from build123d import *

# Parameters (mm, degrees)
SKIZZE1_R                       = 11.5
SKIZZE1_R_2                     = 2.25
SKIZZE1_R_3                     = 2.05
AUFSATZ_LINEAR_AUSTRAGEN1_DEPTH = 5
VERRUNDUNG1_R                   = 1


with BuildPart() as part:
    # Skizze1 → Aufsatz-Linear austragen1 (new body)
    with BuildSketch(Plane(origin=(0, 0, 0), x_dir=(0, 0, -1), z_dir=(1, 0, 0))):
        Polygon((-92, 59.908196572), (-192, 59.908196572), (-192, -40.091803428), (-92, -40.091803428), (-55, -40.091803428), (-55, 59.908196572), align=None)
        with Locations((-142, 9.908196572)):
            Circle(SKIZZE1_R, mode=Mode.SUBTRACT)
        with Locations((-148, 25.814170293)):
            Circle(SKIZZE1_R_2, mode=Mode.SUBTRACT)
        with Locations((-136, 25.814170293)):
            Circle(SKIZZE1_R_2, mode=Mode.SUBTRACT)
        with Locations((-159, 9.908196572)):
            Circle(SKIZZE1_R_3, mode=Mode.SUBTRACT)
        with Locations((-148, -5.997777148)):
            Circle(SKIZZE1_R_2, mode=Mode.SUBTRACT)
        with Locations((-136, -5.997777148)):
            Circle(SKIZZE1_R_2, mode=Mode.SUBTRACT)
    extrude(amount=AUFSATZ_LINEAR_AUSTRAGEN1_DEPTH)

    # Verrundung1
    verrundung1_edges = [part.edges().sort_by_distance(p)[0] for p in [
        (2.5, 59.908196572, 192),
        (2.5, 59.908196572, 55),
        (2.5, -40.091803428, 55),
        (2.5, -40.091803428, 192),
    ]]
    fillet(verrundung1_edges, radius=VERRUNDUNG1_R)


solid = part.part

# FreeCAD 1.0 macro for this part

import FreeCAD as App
import Part
import Sketcher
from FreeCAD import Vector
Q = App.Units.Quantity


def edges_at(feature, points):
    """Names of the edges that pass closest to the given points."""
    edges = feature.Shape.Edges
    near = lambda p: min(range(len(edges)), key=lambda i: edges[i].distToShape(Part.Vertex(*p))[0])
    return sorted({f"Edge{near(p) + 1}" for p in points})


def add_polygon(sketch, points):
    """Adds a closed chain of lines whose ends are joined by coincident constraints."""
    first, n = sketch.GeometryCount, len(points)
    for a, b in zip(points, points[1:] + points[:1]):
        sketch.addGeometry(Part.LineSegment(App.Vector(*a, 0), App.Vector(*b, 0)), False)
    for i in range(n):
        sketch.addConstraint(Sketcher.Constraint("Coincident", first + i, 2, first + (i + 1) % n, 1))

doc = App.newDocument("Part")
body = doc.addObject("PartDesign::Body", "Body")

sketch1 = body.newObject("Sketcher::SketchObject", "Sketch")
sketch1.AttachmentSupport = (doc.getObject("YZ_Plane"), [""])
sketch1.MapMode = "FlatFace"
add_polygon(sketch1, [(59.908197, 192), (-40.091803, 192), (-40.091803, 55), (59.908197, 55)])
sketch1.addGeometry(Part.Circle(Vector(-5.997777, 148, 0), Vector(0, 0, 1), 2.25), False)
sketch1.addGeometry(Part.Circle(Vector(9.908197, 159, 0), Vector(0, 0, 1), 2.05), False)
sketch1.addGeometry(Part.Circle(Vector(-5.997777, 136, 0), Vector(0, 0, 1), 2.25), False)
sketch1.addGeometry(Part.Circle(Vector(9.908197, 142, 0), Vector(0, 0, 1), 11.5), False)
sketch1.addGeometry(Part.Circle(Vector(25.81417, 148, 0), Vector(0, 0, 1), 2.25), False)
sketch1.addGeometry(Part.Circle(Vector(25.81417, 136, 0), Vector(0, 0, 1), 2.25), False)
sketch1.addConstraint([
    Sketcher.Constraint("Horizontal", 0),
    Sketcher.Constraint("Vertical", 1),
    Sketcher.Constraint("Horizontal", 2),
    Sketcher.Constraint("Vertical", 3),
    Sketcher.Constraint("Equal", 4, 6),
    Sketcher.Constraint("Equal", 6, 8),
    Sketcher.Constraint("Equal", 8, 9),
    Sketcher.Constraint("Horizontal", 4, 3, 8, 3),
    Sketcher.Constraint("Horizontal", 6, 3, 9, 3),
    Sketcher.Constraint("Vertical", 4, 3, 6, 3),
    Sketcher.Constraint("Vertical", 5, 3, 7, 3),
    Sketcher.Constraint("Vertical", 8, 3, 9, 3),
    Sketcher.Constraint("Diameter", 7, Q("23 mm")),
    Sketcher.Constraint("Diameter", 4, Q("4.5 mm")),
    Sketcher.Constraint("Diameter", 5, Q("4.1 mm")),
    Sketcher.Constraint("DistanceX", 0, 2, 0, 1, Q("100 mm")),
    Sketcher.Constraint("DistanceY", 1, 2, 1, 1, Q("137 mm")),
    Sketcher.Constraint("DistanceY", -1, 1, 4, 3, Q("148 mm")),
    Sketcher.Constraint("DistanceY", -1, 1, 5, 3, Q("159 mm")),
    Sketcher.Constraint("DistanceY", -1, 1, 6, 3, Q("136 mm")),
    Sketcher.Constraint("DistanceY", -1, 1, 7, 3, Q("142 mm")),
    Sketcher.Constraint("DistanceY", -1, 1, 0, 2, Q("192 mm")),
    Sketcher.Constraint("DistanceX", 0, 2, 5, 3, Q("50 mm")),
    Sketcher.Constraint("DistanceX", -1, 1, 8, 3, Q("25.81417 mm")),
    Sketcher.Constraint("DistanceX", 4, 3, -1, 1, Q("5.997777 mm")),
    Sketcher.Constraint("DistanceX", -1, 1, 5, 3, Q("9.908197 mm")),
])
pad1 = body.newObject("PartDesign::Pad", "Pad")
pad1.Profile = sketch1
pad1.Length = 5
doc.recompute()

fillet = body.newObject("PartDesign::Fillet", "Fillet")
fillet.Base = (pad1, edges_at(pad1, [
    (2.5, 59.908, 192),
    (2.5, 59.908, 55),
    (2.5, -40.092, 55),
    (2.5, -40.092, 192),
]))
fillet.Radius = 1

doc.recompute()
